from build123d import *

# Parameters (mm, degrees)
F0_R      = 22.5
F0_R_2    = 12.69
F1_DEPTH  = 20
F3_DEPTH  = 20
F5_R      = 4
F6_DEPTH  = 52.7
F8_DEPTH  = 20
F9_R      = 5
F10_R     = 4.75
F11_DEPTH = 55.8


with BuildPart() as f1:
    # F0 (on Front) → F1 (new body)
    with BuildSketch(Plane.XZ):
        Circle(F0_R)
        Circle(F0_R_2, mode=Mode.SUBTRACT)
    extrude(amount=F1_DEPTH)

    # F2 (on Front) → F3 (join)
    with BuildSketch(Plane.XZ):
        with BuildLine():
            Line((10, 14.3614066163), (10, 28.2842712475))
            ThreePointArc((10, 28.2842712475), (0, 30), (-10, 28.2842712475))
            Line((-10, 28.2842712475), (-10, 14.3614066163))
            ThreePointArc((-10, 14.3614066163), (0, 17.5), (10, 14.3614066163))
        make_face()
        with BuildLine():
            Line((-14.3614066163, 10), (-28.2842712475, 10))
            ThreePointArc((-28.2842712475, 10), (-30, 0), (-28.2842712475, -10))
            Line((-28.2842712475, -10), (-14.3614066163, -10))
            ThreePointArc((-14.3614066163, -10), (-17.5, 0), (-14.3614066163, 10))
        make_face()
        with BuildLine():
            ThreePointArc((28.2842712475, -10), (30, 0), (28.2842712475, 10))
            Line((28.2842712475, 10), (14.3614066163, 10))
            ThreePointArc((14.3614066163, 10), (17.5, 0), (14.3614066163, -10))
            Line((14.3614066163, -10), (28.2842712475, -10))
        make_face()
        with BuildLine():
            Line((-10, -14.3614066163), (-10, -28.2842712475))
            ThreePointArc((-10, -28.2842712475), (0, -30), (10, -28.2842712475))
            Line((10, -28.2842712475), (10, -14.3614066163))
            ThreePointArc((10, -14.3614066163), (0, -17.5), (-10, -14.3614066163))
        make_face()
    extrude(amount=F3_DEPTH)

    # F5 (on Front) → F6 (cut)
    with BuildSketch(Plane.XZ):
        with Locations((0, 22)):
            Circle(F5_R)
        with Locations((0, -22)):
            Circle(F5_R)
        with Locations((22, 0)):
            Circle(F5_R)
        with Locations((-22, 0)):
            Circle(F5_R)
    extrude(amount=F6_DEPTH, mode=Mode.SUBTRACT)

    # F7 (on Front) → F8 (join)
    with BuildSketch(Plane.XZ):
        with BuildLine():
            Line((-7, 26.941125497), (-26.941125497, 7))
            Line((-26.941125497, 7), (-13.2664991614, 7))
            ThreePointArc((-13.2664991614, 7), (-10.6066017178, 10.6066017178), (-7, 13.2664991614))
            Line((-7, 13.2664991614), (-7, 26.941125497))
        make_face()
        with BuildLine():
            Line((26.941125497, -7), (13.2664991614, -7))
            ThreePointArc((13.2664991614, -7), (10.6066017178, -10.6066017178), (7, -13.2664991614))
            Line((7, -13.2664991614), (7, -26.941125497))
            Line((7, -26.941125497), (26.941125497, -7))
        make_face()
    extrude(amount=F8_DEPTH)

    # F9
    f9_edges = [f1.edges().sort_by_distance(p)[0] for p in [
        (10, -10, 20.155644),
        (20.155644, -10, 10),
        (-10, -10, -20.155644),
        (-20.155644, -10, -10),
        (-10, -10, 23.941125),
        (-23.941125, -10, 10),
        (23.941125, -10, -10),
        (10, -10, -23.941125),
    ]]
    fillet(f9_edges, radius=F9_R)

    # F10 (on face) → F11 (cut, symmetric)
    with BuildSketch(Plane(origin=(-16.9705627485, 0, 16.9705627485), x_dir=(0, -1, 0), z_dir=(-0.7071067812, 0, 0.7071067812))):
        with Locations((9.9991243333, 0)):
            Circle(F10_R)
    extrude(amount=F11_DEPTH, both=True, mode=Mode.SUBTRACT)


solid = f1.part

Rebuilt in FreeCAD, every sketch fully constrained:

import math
import FreeCAD as App
import Part
import Sketcher

V = App.Vector
Q = App.Units.Quantity


def edges_at(feature, points):
    """Names of the edges that pass closest to the given points."""
    edges = feature.Shape.Edges
    near = lambda p: min(range(len(edges)), key=lambda i: edges[i].distToShape(Part.Vertex(*p))[0])
    return sorted({f"Edge{near(p) + 1}" for p in points})

doc = App.newDocument("Part")
body = doc.addObject("PartDesign::Body", "Body")

# Sketch on XZ plane
sketch1 = body.newObject("Sketcher::SketchObject", "Sketch")
sketch1.AttachmentSupport = (doc.getObject("XZ_Plane"), [""])
sketch1.MapMode = "FlatFace"
sketch1.addGeometry(Part.Circle(V(0, 0, 0), V(0, 0, 1), 22.5), False)
sketch1.addGeometry(Part.Circle(V(0, 0, 0), V(0, 0, 1), 12.69), False)
sketch1.addConstraint(Sketcher.Constraint("Coincident", 0, 3, -1, 1))
sketch1.addConstraint(Sketcher.Constraint("Coincident", 1, 3, -1, 1))
sketch1.addConstraint(Sketcher.Constraint("Diameter", 0, Q("45 mm")))
sketch1.addConstraint(Sketcher.Constraint("Diameter", 1, Q("25.38 mm")))
pad1 = body.newObject("PartDesign::Pad", "Pad")
pad1.Profile = sketch1
pad1.Length = 20

# Sketch on XZ plane
sketch2 = body.newObject("Sketcher::SketchObject", "Sketch001")
sketch2.AttachmentSupport = (doc.getObject("XZ_Plane"), [""])
sketch2.MapMode = "FlatFace"
sketch2.addGeometry(Part.LineSegment(V(10, 14.361407, 0), V(10, 28.284271, 0)), False)
sketch2.addGeometry(Part.ArcOfCircle(Part.Circle(V(0, 0, 0), V(0, 0, 1), 30), math.radians(70.528779), math.radians(109.471221)), False)
sketch2.addGeometry(Part.LineSegment(V(-10, 28.284271, 0), V(-10, 14.361407, 0)), False)
sketch2.addGeometry(Part.ArcOfCircle(Part.Circle(V(0, 0, 0), V(0, 0, 1), 17.5), math.radians(55.150095), math.radians(124.849905)), False)
sketch2.addGeometry(Part.LineSegment(V(-14.361407, 10, 0), V(-28.284271, 10, 0)), False)
sketch2.addGeometry(Part.ArcOfCircle(Part.Circle(V(0, 0, 0), V(0, 0, 1), 30), math.radians(160.528779), math.radians(199.471221)), False)
sketch2.addGeometry(Part.LineSegment(V(-28.284271, -10, 0), V(-14.361407, -10, 0)), False)
sketch2.addGeometry(Part.ArcOfCircle(Part.Circle(V(0, 0, 0), V(0, 0, 1), 17.5), math.radians(145.150095), math.radians(214.849905)), False)
sketch2.addGeometry(Part.ArcOfCircle(Part.Circle(V(0, 0, 0), V(0, 0, 1), 30), math.radians(-19.471221), math.radians(19.471221)), False)
sketch2.addGeometry(Part.LineSegment(V(28.284271, 10, 0), V(14.361407, 10, 0)), False)
sketch2.addGeometry(Part.ArcOfCircle(Part.Circle(V(0, 0, 0), V(0, 0, 1), 17.5), math.radians(-34.849905), math.radians(34.849905)), False)
sketch2.addGeometry(Part.LineSegment(V(14.361407, -10, 0), V(28.284271, -10, 0)), False)
sketch2.addGeometry(Part.LineSegment(V(-10, -14.361407, 0), V(-10, -28.284271, 0)), False)
sketch2.addGeometry(Part.ArcOfCircle(Part.Circle(V(0, 0, 0), V(0, 0, 1), 30), math.radians(-109.471221), math.radians(-70.528779)), False)
sketch2.addGeometry(Part.LineSegment(V(10, -28.284271, 0), V(10, -14.361407, 0)), False)
sketch2.addGeometry(Part.ArcOfCircle(Part.Circle(V(0, 0, 0), V(0, 0, 1), 17.5), math.radians(-124.849905), math.radians(-55.150095)), False)
sketch2.addConstraint(Sketcher.Constraint("Coincident", 0, 2, 1, 1))
sketch2.addConstraint(Sketcher.Constraint("Coincident", 1, 2, 2, 1))
sketch2.addConstraint(Sketcher.Constraint("Coincident", 2, 2, 3, 2))
sketch2.addConstraint(Sketcher.Constraint("Coincident", 3, 1, 0, 1))
sketch2.addConstraint(Sketcher.Constraint("Coincident", 4, 2, 5, 1))
sketch2.addConstraint(Sketcher.Constraint("Coincident", 5, 2, 6, 1))
sketch2.addConstraint(Sketcher.Constraint("Coincident", 6, 2, 7, 2))
sketch2.addConstraint(Sketcher.Constraint("Coincident", 7, 1, 4, 1))
sketch2.addConstraint(Sketcher.Constraint("Coincident", 8, 2, 9, 1))
sketch2.addConstraint(Sketcher.Constraint("Coincident", 9, 2, 10, 2))
sketch2.addConstraint(Sketcher.Constraint("Coincident", 10, 1, 11, 1))
sketch2.addConstraint(Sketcher.Constraint("Coincident", 11, 2, 8, 1))
sketch2.addConstraint(Sketcher.Constraint("Coincident", 12, 2, 13, 1))
sketch2.addConstraint(Sketcher.Constraint("Coincident", 13, 2, 14, 1))
sketch2.addConstraint(Sketcher.Constraint("Coincident", 14, 2, 15, 2))
sketch2.addConstraint(Sketcher.Constraint("Coincident", 15, 1, 12, 1))
sketch2.addConstraint(Sketcher.Constraint("Vertical", 0))
sketch2.addConstraint(Sketcher.Constraint("Vertical", 2))
sketch2.addConstraint(Sketcher.Constraint("Horizontal", 4))
sketch2.addConstraint(Sketcher.Constraint("Horizontal", 6))
sketch2.addConstraint(Sketcher.Constraint("Horizontal", 9))
sketch2.addConstraint(Sketcher.Constraint("Horizontal", 11))
sketch2.addConstraint(Sketcher.Constraint("Vertical", 12))
sketch2.addConstraint(Sketcher.Constraint("Vertical", 14))
sketch2.addConstraint(Sketcher.Constraint("Coincident", 1, 3, -1, 1))
sketch2.addConstraint(Sketcher.Constraint("Coincident", 3, 3, -1, 1))
sketch2.addConstraint(Sketcher.Constraint("Coincident", 5, 3, -1, 1))
sketch2.addConstraint(Sketcher.Constraint("Coincident", 7, 3, -1, 1))
sketch2.addConstraint(Sketcher.Constraint("Coincident", 8, 3, -1, 1))
sketch2.addConstraint(Sketcher.Constraint("Coincident", 10, 3, -1, 1))
sketch2.addConstraint(Sketcher.Constraint("Coincident", 13, 3, -1, 1))
sketch2.addConstraint(Sketcher.Constraint("Coincident", 15, 3, -1, 1))
sketch2.addConstraint(Sketcher.Constraint("Equal", 1, 5))
sketch2.addConstraint(Sketcher.Constraint("Equal", 3, 7))
sketch2.addConstraint(Sketcher.Constraint("Equal", 5, 8))
sketch2.addConstraint(Sketcher.Constraint("Equal", 7, 10))
sketch2.addConstraint(Sketcher.Constraint("Equal", 8, 13))
sketch2.addConstraint(Sketcher.Constraint("Equal", 10, 15))
sketch2.addConstraint(Sketcher.Constraint("Horizontal", 0, 2, 1, 2))
sketch2.addConstraint(Sketcher.Constraint("Horizontal", 7, 1, 8, 2))
sketch2.addConstraint(Sketcher.Constraint("Horizontal", 6, 2, 10, 1))
sketch2.addConstraint(Sketcher.Constraint("Horizontal", 12, 2, 13, 2))
sketch2.addConstraint(Sketcher.Constraint("Vertical", 4, 2, 5, 2))
sketch2.addConstraint(Sketcher.Constraint("Vertical", 2, 2, 12, 2))
sketch2.addConstraint(Sketcher.Constraint("Equal", 11, 0))
sketch2.addConstraint(Sketcher.Constraint("Radius", 1, Q("30 mm")))
sketch2.addConstraint(Sketcher.Constraint("Radius", 3, Q("17.5 mm")))
sketch2.addConstraint(Sketcher.Constraint("DistanceX", -1, 1, 0, 2, Q("10 mm")))
pad2 = body.newObject("PartDesign::Pad", "Pad001")
pad2.Profile = sketch2
pad2.Length = 20

# Sketch on XZ plane
sketch3 = body.newObject("Sketcher::SketchObject", "Sketch002")
sketch3.AttachmentSupport = (doc.getObject("XZ_Plane"), [""])
sketch3.MapMode = "FlatFace"
sketch3.addGeometry(Part.Circle(V(0, 22, 0), V(0, 0, 1), 4), False)
sketch3.addGeometry(Part.Circle(V(0, -22, 0), V(0, 0, 1), 4), False)
sketch3.addGeometry(Part.Circle(V(22, 0, 0), V(0, 0, 1), 4), False)
sketch3.addGeometry(Part.Circle(V(-22, 0, 0), V(0, 0, 1), 4), False)
sketch3.addConstraint(Sketcher.Constraint("Equal", 0, 1))
sketch3.addConstraint(Sketcher.Constraint("Equal", 1, 2))
sketch3.addConstraint(Sketcher.Constraint("Equal", 2, 3))
sketch3.addConstraint(Sketcher.Constraint("Symmetric", 0, 3, 1, 3, -1, 1))
sketch3.addConstraint(Sketcher.Constraint("Symmetric", 2, 3, 3, 3, -1, 1))
sketch3.addConstraint(Sketcher.Constraint("PointOnObject", 0, 3, -2))
sketch3.addConstraint(Sketcher.Constraint("PointOnObject", 2, 3, -1))
sketch3.addConstraint(Sketcher.Constraint("Diameter", 0, Q("8 mm")))
sketch3.addConstraint(Sketcher.Constraint("DistanceY", -1, 1, 0, 3, Q("22 mm")))
sketch3.addConstraint(Sketcher.Constraint("DistanceX", -1, 1, 2, 3, Q("22 mm")))
pocket1 = body.newObject("PartDesign::Pocket", "Pocket")
pocket1.Profile = sketch3
pocket1.Length = 52.7
pocket1.Reversed = True

# Sketch on XZ plane
sketch4 = body.newObject("Sketcher::SketchObject", "Sketch003")
sketch4.AttachmentSupport = (doc.getObject("XZ_Plane"), [""])
sketch4.MapMode = "FlatFace"
sketch4.addGeometry(Part.LineSegment(V(-7, 26.941125, 0), V(-26.941125, 7, 0)), False)
sketch4.addGeometry(Part.LineSegment(V(-26.941125, 7, 0), V(-13.266499, 7, 0)), False)
sketch4.addGeometry(Part.ArcOfCircle(Part.Circle(V(0, 0, 0), V(0, 0, 1), 15), math.radians(117.818139), math.radians(152.181861)), False)
sketch4.addGeometry(Part.LineSegment(V(-7, 13.266499, 0), V(-7, 26.941125, 0)), False)
sketch4.addGeometry(Part.LineSegment(V(26.941125, -7, 0), V(13.266499, -7, 0)), False)
sketch4.addGeometry(Part.ArcOfCircle(Part.Circle(V(0, 0, 0), V(0, 0, 1), 15), math.radians(-62.181861), math.radians(-27.818139)), False)
sketch4.addGeometry(Part.LineSegment(V(7, -13.266499, 0), V(7, -26.941125, 0)), False)
sketch4.addGeometry(Part.LineSegment(V(7, -26.941125, 0), V(26.941125, -7, 0)), False)
sketch4.addConstraint(Sketcher.Constraint("Coincident", 0, 2, 1, 1))
sketch4.addConstraint(Sketcher.Constraint("Coincident", 1, 2, 2, 2))
sketch4.addConstraint(Sketcher.Constraint("Coincident", 2, 1, 3, 1))
sketch4.addConstraint(Sketcher.Constraint("Coincident", 3, 2, 0, 1))
sketch4.addConstraint(Sketcher.Constraint("Coincident", 4, 2, 5, 2))
sketch4.addConstraint(Sketcher.Constraint("Coincident", 5, 1, 6, 1))
sketch4.addConstraint(Sketcher.Constraint("Coincident", 6, 2, 7, 1))
sketch4.addConstraint(Sketcher.Constraint("Coincident", 7, 2, 4, 1))
sketch4.addConstraint(Sketcher.Constraint("Horizontal", 1))
sketch4.addConstraint(Sketcher.Constraint("Vertical", 3))
sketch4.addConstraint(Sketcher.Constraint("Horizontal", 4))
sketch4.addConstraint(Sketcher.Constraint("Vertical", 6))
sketch4.addConstraint(Sketcher.Constraint("Coincident", 2, 3, -1, 1))
sketch4.addConstraint(Sketcher.Constraint("Coincident", 5, 3, -1, 1))
sketch4.addConstraint(Sketcher.Constraint("Equal", 2, 5))
sketch4.addConstraint(Sketcher.Constraint("Symmetric", 3, 2, 6, 2, -1, 1))
sketch4.addConstraint(Sketcher.Constraint("Symmetric", 0, 2, 7, 2, -1, 1))
sketch4.addConstraint(Sketcher.Constraint("Equal", 4, 3))
sketch4.addConstraint(Sketcher.Constraint("Radius", 2, Q("15 mm")))
sketch4.addConstraint(Sketcher.Constraint("Angle", 0, Q("-135 deg")))
sketch4.addConstraint(Sketcher.Constraint("DistanceY", -1, 1, 0, 2, Q("7 mm")))
sketch4.addConstraint(Sketcher.Constraint("Distance", 0, Q("28.20101 mm")))
pad3 = body.newObject("PartDesign::Pad", "Pad002")
pad3.Profile = sketch4
pad3.Length = 20
doc.recompute()

fillet = body.newObject("PartDesign::Fillet", "Fillet")
fillet.Base = (pad3, edges_at(pad3, [
    (10, -10, 20.156),
    (20.156, -10, 10),
    (-10, -10, -20.156),
    (-20.156, -10, -10),
    (-10, -10, 23.941),
    (-23.941, -10, 10),
    (23.941, -10, -10),
    (10, -10, -23.941),
]))
fillet.Radius = 5

# Sketch on an angled plane
sketch5 = body.newObject("Sketcher::SketchObject", "Sketch004")
sketch5.Placement = App.Placement(V(-16.970563, 0, 16.970563), App.Rotation(V(0, -1, 0), V(0.707106781, 0, 0.707106781), V(-0.707106781, 0, 0.707106781), "ZXY"))
sketch5.addGeometry(Part.Circle(V(9.999124, 0, 0), V(0, 0, 1), 4.75), False)
sketch5.addConstraint(Sketcher.Constraint("PointOnObject", 0, 3, -1))
sketch5.addConstraint(Sketcher.Constraint("Diameter", 0, Q("9.5 mm")))
sketch5.addConstraint(Sketcher.Constraint("DistanceX", -1, 1, 0, 3, Q("9.999124 mm")))
pocket2 = body.newObject("PartDesign::Pocket", "Pocket001")
pocket2.Profile = sketch5
pocket2.Length = 111.6
pocket2.Midplane = True

doc.recompute()
